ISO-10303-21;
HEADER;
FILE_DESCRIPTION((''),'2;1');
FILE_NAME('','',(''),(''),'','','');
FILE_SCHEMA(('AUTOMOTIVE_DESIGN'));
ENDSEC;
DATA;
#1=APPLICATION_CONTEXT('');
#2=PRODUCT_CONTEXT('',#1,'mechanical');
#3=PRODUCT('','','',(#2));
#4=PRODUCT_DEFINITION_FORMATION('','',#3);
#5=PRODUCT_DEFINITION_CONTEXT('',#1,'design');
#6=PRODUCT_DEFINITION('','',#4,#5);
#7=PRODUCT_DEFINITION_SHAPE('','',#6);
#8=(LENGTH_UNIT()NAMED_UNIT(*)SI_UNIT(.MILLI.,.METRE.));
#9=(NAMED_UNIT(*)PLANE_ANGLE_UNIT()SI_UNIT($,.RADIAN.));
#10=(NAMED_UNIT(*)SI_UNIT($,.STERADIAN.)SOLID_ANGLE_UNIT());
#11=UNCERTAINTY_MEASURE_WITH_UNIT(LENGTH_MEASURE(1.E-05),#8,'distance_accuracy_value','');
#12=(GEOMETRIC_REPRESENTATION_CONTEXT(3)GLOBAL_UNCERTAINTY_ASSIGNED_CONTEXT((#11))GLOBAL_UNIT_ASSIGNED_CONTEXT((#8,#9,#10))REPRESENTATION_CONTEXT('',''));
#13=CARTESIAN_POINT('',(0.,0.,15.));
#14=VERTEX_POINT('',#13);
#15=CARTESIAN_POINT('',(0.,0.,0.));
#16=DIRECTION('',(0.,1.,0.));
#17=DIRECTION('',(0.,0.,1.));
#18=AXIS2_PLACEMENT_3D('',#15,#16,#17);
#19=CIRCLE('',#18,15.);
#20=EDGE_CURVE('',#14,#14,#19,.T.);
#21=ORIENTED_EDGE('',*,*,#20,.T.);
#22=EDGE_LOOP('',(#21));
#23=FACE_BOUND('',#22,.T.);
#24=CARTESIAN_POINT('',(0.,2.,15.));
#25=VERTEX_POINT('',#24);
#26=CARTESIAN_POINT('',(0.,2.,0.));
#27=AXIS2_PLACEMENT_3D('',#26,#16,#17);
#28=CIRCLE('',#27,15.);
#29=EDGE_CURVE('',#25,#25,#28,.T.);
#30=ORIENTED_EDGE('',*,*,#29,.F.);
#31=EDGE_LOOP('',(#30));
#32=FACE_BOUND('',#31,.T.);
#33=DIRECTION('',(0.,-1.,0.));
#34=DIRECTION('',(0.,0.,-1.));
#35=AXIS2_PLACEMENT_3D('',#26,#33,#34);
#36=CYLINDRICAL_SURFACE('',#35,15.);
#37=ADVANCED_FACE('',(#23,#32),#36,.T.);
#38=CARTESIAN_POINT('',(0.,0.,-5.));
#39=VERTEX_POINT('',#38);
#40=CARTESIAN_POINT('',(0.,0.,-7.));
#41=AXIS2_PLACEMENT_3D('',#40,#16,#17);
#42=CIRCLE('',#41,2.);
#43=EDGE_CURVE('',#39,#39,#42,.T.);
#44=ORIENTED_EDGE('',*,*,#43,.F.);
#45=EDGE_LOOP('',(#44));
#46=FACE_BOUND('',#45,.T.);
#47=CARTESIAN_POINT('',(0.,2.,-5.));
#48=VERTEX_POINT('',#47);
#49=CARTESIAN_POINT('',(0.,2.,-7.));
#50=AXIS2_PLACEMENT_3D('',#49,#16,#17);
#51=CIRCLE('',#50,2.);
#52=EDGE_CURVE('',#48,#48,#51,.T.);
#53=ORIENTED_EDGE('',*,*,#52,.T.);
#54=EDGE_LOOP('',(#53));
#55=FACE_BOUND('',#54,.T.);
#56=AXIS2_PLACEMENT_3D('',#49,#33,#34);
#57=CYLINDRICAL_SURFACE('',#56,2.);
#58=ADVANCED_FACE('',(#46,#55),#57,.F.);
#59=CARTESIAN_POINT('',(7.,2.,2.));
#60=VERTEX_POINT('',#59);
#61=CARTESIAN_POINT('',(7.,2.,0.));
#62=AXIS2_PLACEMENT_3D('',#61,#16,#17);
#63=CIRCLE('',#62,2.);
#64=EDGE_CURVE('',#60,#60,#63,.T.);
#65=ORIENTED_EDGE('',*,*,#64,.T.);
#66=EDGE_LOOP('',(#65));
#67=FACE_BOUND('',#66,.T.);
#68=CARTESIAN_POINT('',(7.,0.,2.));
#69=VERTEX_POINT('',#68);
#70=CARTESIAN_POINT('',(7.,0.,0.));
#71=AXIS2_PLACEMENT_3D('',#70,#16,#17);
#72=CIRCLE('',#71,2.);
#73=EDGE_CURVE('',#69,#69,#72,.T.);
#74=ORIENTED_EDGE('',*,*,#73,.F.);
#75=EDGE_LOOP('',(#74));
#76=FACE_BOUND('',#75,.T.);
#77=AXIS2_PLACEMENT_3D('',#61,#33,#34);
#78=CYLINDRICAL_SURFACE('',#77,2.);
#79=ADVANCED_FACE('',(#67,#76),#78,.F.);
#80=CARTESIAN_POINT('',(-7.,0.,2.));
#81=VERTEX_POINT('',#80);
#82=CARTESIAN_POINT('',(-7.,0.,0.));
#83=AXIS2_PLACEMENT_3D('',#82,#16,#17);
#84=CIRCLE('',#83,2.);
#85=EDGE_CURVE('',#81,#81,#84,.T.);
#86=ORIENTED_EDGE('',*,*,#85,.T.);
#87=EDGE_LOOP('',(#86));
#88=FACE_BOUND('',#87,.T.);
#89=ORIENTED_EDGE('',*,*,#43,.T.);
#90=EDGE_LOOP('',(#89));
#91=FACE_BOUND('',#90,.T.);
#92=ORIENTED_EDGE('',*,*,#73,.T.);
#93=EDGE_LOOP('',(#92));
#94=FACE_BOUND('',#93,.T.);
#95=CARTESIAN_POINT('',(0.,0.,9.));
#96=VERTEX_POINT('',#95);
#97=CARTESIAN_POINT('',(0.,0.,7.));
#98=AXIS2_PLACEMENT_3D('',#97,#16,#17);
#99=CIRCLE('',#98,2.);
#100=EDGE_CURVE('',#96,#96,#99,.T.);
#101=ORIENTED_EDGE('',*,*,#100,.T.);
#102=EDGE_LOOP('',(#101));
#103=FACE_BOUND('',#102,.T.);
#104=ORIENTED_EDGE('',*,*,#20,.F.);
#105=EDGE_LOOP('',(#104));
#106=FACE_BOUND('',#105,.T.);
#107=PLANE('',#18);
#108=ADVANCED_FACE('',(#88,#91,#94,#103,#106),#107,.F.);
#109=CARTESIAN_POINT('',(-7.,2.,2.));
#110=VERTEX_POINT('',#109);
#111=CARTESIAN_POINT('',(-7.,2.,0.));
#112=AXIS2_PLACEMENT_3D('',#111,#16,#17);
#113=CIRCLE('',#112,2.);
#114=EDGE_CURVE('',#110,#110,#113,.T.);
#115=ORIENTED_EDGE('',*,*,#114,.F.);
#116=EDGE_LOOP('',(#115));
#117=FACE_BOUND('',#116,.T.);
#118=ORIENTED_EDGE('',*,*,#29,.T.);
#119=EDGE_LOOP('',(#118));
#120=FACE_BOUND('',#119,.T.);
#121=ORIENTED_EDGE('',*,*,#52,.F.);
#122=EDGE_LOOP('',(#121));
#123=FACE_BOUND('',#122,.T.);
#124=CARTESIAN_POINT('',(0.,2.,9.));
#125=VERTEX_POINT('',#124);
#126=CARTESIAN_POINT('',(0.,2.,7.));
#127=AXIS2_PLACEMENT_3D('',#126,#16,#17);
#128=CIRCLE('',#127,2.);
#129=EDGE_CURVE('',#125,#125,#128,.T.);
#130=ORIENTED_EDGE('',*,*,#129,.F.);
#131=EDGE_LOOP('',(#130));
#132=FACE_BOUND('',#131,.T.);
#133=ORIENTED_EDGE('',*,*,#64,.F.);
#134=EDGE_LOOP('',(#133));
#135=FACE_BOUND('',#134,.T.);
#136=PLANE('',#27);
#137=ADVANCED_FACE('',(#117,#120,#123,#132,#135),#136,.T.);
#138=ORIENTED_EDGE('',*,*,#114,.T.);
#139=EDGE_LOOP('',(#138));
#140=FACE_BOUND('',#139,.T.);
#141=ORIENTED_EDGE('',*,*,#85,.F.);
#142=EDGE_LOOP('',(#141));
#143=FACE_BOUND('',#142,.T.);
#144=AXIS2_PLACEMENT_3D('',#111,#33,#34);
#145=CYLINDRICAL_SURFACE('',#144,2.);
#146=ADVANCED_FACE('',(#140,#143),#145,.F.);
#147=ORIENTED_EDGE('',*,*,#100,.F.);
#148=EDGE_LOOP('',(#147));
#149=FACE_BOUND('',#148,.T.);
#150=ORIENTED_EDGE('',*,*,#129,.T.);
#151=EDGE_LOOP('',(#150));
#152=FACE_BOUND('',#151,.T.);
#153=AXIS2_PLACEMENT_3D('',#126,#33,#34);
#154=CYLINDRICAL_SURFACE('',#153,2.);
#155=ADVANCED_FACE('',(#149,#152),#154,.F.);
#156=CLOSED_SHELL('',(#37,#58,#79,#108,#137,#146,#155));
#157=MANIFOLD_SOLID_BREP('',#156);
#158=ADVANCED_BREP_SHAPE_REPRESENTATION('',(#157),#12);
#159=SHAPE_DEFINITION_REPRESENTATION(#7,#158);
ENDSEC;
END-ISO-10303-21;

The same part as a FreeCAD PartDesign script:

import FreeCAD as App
import Part
import Sketcher
Q = App.Units.Quantity

doc = App.newDocument("Part")
params = doc.addObject("Spreadsheet::Sheet", "Params")
for row, (alias, value) in enumerate([
    ("sketch1_diameter", "30 mm"),
    ("sketch1_diameter2", "4 mm"),
    ("pad1_length", "2 mm"),
], start=1):
    params.set(f"A{row}", alias)
    params.set(f"B{row}", "=" + value)
    params.setAlias(f"B{row}", alias)

body = doc.addObject("PartDesign::Body", "Body")

# Sketch on XZ plane
sketch1 = doc.addObject("Sketcher::SketchObject", "Sketch")
body.addObject(sketch1)
sketch1.AttachmentSupport = (doc.XZ_Plane, [""])
sketch1.MapMode = "FlatFace"
sketch1.addGeometry([
    Part.Circle(App.Vector(0, 0, 0), App.Vector(0, 0, 1), 15),  # 0
    Part.Circle(App.Vector(0, -7, 0), App.Vector(0, 0, 1), 2),  # 1
    Part.Circle(App.Vector(-7, 0, 0), App.Vector(0, 0, 1), 2),  # 2
    Part.Circle(App.Vector(0, 7, 0), App.Vector(0, 0, 1), 2),  # 3
    Part.Circle(App.Vector(7, 0, 0), App.Vector(0, 0, 1), 2),  # 4
], False)
sketch1.addConstraint([
    Sketcher.Constraint("Coincident", 0, 3, -1, 1),
    Sketcher.Constraint("Equal", 1, 2),
    Sketcher.Constraint("Equal", 2, 3),
    Sketcher.Constraint("Equal", 3, 4),
    Sketcher.Constraint("Symmetric", 1, 3, 3, 3, -1, 1),
    Sketcher.Constraint("Symmetric", 2, 3, 4, 3, -1, 1),
    Sketcher.Constraint("PointOnObject", 1, 3, -2),
    Sketcher.Constraint("PointOnObject", 2, 3, -1),
    Sketcher.Constraint("Diameter", 0, Q("30 mm")),
    Sketcher.Constraint("Diameter", 1, Q("4 mm")),
    Sketcher.Constraint("DistanceY", 1, 3, -1, 1, Q("7 mm")),
    Sketcher.Constraint("DistanceX", 2, 3, -1, 1, Q("7 mm")),
])
sketch1.setExpression("Constraints[8]", "Params.sketch1_diameter")
sketch1.setExpression("Constraints[9]", "Params.sketch1_diameter2")
pad1 = doc.addObject("PartDesign::Pad", "Pad")
body.addObject(pad1)
pad1.Profile = sketch1
pad1.setExpression("Length", "Params.pad1_length")
pad1.Reversed = True

doc.recompute()
